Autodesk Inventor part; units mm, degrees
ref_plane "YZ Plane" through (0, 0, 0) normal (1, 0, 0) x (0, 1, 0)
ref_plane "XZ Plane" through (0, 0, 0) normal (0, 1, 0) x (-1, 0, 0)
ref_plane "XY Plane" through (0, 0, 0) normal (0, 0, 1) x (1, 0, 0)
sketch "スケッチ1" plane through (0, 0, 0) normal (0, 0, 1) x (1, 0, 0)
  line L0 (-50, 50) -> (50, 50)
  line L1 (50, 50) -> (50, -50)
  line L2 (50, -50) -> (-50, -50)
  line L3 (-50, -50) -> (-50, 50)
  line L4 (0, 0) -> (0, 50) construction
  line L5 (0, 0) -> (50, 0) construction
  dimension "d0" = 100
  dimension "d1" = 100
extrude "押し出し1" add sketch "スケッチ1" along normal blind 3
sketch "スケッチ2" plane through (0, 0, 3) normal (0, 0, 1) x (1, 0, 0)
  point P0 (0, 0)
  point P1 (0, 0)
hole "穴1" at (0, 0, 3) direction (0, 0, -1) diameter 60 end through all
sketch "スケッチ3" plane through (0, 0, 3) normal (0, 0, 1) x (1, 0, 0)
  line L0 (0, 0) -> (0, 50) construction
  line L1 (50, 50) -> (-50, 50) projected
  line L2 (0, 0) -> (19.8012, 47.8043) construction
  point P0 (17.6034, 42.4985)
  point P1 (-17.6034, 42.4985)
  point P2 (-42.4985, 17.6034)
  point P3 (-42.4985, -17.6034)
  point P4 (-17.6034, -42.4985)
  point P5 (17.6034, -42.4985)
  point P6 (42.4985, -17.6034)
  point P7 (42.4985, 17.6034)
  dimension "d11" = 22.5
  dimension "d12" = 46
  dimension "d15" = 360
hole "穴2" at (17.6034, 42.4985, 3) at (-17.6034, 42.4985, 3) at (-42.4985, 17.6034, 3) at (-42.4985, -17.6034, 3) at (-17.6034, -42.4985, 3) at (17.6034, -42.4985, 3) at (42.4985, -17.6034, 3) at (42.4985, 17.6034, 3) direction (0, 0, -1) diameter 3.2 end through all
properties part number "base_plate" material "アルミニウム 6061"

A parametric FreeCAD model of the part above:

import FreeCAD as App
import Part
import Sketcher

V = App.Vector
Q = App.Units.Quantity

doc = App.newDocument("Part")
body = doc.addObject("PartDesign::Body", "Body")

# Sketch on XY plane
sketch1 = doc.addObject("Sketcher::SketchObject", "Sketch")
body.addObject(sketch1)
sketch1.AttachmentSupport = (doc.XY_Plane, [""])
sketch1.MapMode = "FlatFace"
sketch1.addGeometry([
    Part.LineSegment(V(50, 50, 0), V(-50, 50, 0)),
    Part.LineSegment(V(-50, 50, 0), V(-50, -50, 0)),
    Part.LineSegment(V(-50, -50, 0), V(50, -50, 0)),
    Part.LineSegment(V(50, -50, 0), V(50, 50, 0)),
], False)
sketch1.addConstraint([
    Sketcher.Constraint("Coincident", 0, 2, 1, 1),
    Sketcher.Constraint("Coincident", 1, 2, 2, 1),
    Sketcher.Constraint("Coincident", 2, 2, 3, 1),
    Sketcher.Constraint("Coincident", 3, 2, 0, 1),
    Sketcher.Constraint("Horizontal", 0),
    Sketcher.Constraint("Vertical", 1),
    Sketcher.Constraint("Horizontal", 2),
    Sketcher.Constraint("Vertical", 3),
    Sketcher.Constraint("Symmetric", 0, 2, 2, 2, -1, 1),
    Sketcher.Constraint("Equal", 2, 1),
    Sketcher.Constraint("DistanceX", 0, 2, 0, 1, Q("100 mm")),
])
pad1 = doc.addObject("PartDesign::Pad", "Pad")
body.addObject(pad1)
pad1.Profile = sketch1
pad1.Length = 3

# Sketch on XY plane
sketch2 = doc.addObject("Sketcher::SketchObject", "Sketch001")
body.addObject(sketch2)
sketch2.AttachmentSupport = (doc.XY_Plane, [""])
sketch2.MapMode = "FlatFace"
sketch2.AttachmentOffset = App.Placement(V(0, 0, 3), App.Rotation())
sketch2.addGeometry(Part.Circle(V(0, 0, 0), V(0, 0, 1), 30), False)
sketch2.addConstraint([
    Sketcher.Constraint("Coincident", 0, 3, -1, 1),
    Sketcher.Constraint("Diameter", 0, Q("60 mm")),
])
doc.recompute()
hole = doc.addObject("PartDesign::Hole", "Hole")
body.addObject(hole)
hole.Profile = sketch2
hole.ThreadType = "None"
hole.Diameter = 60
hole.DepthType = "ThroughAll"

# Sketch on XY plane
sketch3 = doc.addObject("Sketcher::SketchObject", "Sketch002")
body.addObject(sketch3)
sketch3.AttachmentSupport = (doc.XY_Plane, [""])
sketch3.MapMode = "FlatFace"
sketch3.AttachmentOffset = App.Placement(V(0, 0, 3), App.Rotation())
sketch3.addGeometry([
    Part.Circle(V(17.6034, 42.4985, 0), V(0, 0, 1), 1.6),  # 0
    Part.Circle(V(-17.6034, 42.4985, 0), V(0, 0, 1), 1.6),  # 1
    Part.Circle(V(-42.4985, 17.6034, 0), V(0, 0, 1), 1.6),  # 2
    Part.Circle(V(-42.4985, -17.6034, 0), V(0, 0, 1), 1.6),  # 3
    Part.Circle(V(-17.6034, -42.4985, 0), V(0, 0, 1), 1.6),  # 4
    Part.Circle(V(17.6034, -42.4985, 0), V(0, 0, 1), 1.6),  # 5
    Part.Circle(V(42.4985, -17.6034, 0), V(0, 0, 1), 1.6),  # 6
    Part.Circle(V(42.4985, 17.6034, 0), V(0, 0, 1), 1.6),  # 7
], False)
sketch3.addConstraint([
    Sketcher.Constraint("Equal", 0, 1),
    Sketcher.Constraint("Equal", 1, 2),
    Sketcher.Constraint("Equal", 2, 3),
    Sketcher.Constraint("Equal", 3, 4),
    Sketcher.Constraint("Equal", 4, 5),
    Sketcher.Constraint("Equal", 5, 6),
    Sketcher.Constraint("Equal", 6, 7),
    Sketcher.Constraint("Symmetric", 0, 3, 4, 3, -1, 1),
    Sketcher.Constraint("Symmetric", 1, 3, 5, 3, -1, 1),
    Sketcher.Constraint("Symmetric", 2, 3, 6, 3, -1, 1),
    Sketcher.Constraint("Symmetric", 3, 3, 7, 3, -1, 1),
    Sketcher.Constraint("Symmetric", 0, 3, 1, 3, -2),
    Sketcher.Constraint("Symmetric", 3, 3, 6, 3, -2),
    Sketcher.Constraint("Diameter", 0, Q("3.2 mm")),
    Sketcher.Constraint("DistanceX", 2, 3, 1, 3, Q("24.895 mm")),
    Sketcher.Constraint("DistanceY", 2, 3, 1, 3, Q("24.895 mm")),
    Sketcher.Constraint("DistanceX", 2, 3, 0, 3, Q("60.102 mm")),
    Sketcher.Constraint("DistanceY", 3, 3, 1, 3, Q("60.102 mm")),
])
doc.recompute()
hole2 = doc.addObject("PartDesign::Hole", "Hole001")
body.addObject(hole2)
hole2.Profile = sketch3
hole2.ThreadType = "None"
hole2.Diameter = 3.2
hole2.DepthType = "ThroughAll"

doc.recompute()
